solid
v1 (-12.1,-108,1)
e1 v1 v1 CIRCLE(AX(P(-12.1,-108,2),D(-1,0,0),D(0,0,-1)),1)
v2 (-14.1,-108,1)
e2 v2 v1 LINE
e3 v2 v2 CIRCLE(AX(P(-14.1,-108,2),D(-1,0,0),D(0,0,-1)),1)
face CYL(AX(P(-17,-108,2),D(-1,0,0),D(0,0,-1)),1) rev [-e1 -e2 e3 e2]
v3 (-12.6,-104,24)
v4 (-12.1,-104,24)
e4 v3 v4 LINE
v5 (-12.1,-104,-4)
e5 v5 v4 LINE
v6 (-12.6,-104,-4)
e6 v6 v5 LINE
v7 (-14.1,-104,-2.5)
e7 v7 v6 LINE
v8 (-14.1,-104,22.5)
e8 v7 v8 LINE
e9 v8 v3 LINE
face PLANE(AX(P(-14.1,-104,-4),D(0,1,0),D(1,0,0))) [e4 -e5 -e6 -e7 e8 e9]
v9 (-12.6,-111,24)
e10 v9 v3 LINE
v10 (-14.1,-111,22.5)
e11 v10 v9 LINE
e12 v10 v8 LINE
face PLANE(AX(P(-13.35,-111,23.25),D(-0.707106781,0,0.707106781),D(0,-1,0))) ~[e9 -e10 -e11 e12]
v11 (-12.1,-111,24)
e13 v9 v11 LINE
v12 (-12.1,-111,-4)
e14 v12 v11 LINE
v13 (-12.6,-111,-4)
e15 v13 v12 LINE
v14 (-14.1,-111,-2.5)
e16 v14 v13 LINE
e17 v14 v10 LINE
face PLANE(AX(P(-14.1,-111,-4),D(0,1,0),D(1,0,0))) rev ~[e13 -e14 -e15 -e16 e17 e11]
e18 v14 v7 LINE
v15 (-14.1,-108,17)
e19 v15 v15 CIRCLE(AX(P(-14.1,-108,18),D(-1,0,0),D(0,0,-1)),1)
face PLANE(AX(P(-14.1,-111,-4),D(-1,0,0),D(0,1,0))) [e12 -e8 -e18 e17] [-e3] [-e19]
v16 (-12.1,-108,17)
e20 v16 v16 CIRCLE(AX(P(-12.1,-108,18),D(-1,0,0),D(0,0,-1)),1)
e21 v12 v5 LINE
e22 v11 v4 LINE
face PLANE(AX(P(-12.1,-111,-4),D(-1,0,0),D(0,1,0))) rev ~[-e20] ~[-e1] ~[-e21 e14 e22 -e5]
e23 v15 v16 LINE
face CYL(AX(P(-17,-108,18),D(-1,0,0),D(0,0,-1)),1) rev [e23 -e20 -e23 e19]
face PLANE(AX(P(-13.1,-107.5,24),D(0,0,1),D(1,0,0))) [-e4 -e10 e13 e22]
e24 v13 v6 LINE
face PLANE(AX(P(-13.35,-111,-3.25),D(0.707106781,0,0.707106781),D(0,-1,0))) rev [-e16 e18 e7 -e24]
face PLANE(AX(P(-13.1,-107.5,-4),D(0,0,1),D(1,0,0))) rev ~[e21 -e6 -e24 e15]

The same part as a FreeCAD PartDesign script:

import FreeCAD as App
import Part
import Sketcher
from FreeCAD import Vector


def edges_at(feature, points):
    """Names of the edges that pass closest to the given points."""
    edges = feature.Shape.Edges
    near = lambda p: min(range(len(edges)), key=lambda i: edges[i].distToShape(Part.Vertex(*p))[0])
    return sorted({f"Edge{near(p) + 1}" for p in points})

doc = App.newDocument("Part")
body = doc.addObject("PartDesign::Body", "Body")

sketch1 = body.newObject("Sketcher::SketchObject", "Sketch")
sketch1.AttachmentSupport = (doc.getObject("YZ_Plane"), [""])
sketch1.MapMode = "FlatFace"
sketch1.AttachmentOffset = App.Placement(Vector(0, 0, -17), App.Rotation())
sketch1.addGeometry(Part.Circle(Vector(-108, 18, 0), Vector(0, 0, 1), 1), False)
sketch1.addConstraint(Sketcher.Constraint("Diameter", 0, 2.0))
sketch1.addConstraint(Sketcher.Constraint("DistanceX", 0, 3, -1, 1, 108.0))
sketch1.addConstraint(Sketcher.Constraint("DistanceY", -1, 1, 0, 3, 18.0))
pad1 = body.newObject("PartDesign::Pad", "Pad")
pad1.Profile = sketch1
pad1.Length = 20
body2 = doc.addObject("PartDesign::Body", "Body001")
body2.AllowCompound = True

sketch2 = body2.newObject("Sketcher::SketchObject", "Sketch001")
sketch2.AttachmentSupport = (doc.getObject("YZ_Plane001"), [""])
sketch2.MapMode = "FlatFace"
sketch2.AttachmentOffset = App.Placement(Vector(0, 0, -17), App.Rotation())
sketch2.addGeometry(Part.Circle(Vector(-108, 2, 0), Vector(0, 0, 1), 1), False)
sketch2.addConstraint(Sketcher.Constraint("Diameter", 0, 2.0))
sketch2.addConstraint(Sketcher.Constraint("DistanceX", 0, 3, -1, 1, 108.0))
sketch2.addConstraint(Sketcher.Constraint("DistanceY", -1, 1, 0, 3, 2.0))
pad2 = body2.newObject("PartDesign::Pad", "Pad001")
pad2.Profile = sketch2
pad2.Length = 20
doc.recompute()

boolean = body2.newObject("PartDesign::Boolean", "Boolean")
boolean.Type = "Fuse"
boolean.addObjects([body])
body3 = doc.addObject("PartDesign::Body", "Body002")

sketch3 = body3.newObject("Sketcher::SketchObject", "Sketch002")
sketch3.AttachmentSupport = (doc.getObject("XY_Plane002"), [""])
sketch3.MapMode = "FlatFace"
sketch3.AttachmentOffset = App.Placement(Vector(0, 0, -4), App.Rotation())
sketch3.addGeometry(Part.LineSegment(Vector(-14.1, -104, 0), Vector(-14.1, -111, 0)), False)
sketch3.addGeometry(Part.LineSegment(Vector(-14.1, -111, 0), Vector(-12.1, -111, 0)), False)
sketch3.addGeometry(Part.LineSegment(Vector(-12.1, -111, 0), Vector(-12.1, -104, 0)), False)
sketch3.addGeometry(Part.LineSegment(Vector(-12.1, -104, 0), Vector(-14.1, -104, 0)), False)
sketch3.addConstraint(Sketcher.Constraint("Coincident", 0, 2, 1, 1))
sketch3.addConstraint(Sketcher.Constraint("Coincident", 1, 2, 2, 1))
sketch3.addConstraint(Sketcher.Constraint("Coincident", 2, 2, 3, 1))
sketch3.addConstraint(Sketcher.Constraint("Coincident", 3, 2, 0, 1))
sketch3.addConstraint(Sketcher.Constraint("Vertical", 0))
sketch3.addConstraint(Sketcher.Constraint("Horizontal", 1))
sketch3.addConstraint(Sketcher.Constraint("Vertical", 2))
sketch3.addConstraint(Sketcher.Constraint("Horizontal", 3))
sketch3.addConstraint(Sketcher.Constraint("DistanceX", 1, 1, 1, 2, 2.0))
sketch3.addConstraint(Sketcher.Constraint("DistanceY", 0, 2, 0, 1, 7.0))
sketch3.addConstraint(Sketcher.Constraint("DistanceY", 0, 2, -1, 1, 111.0))
sketch3.addConstraint(Sketcher.Constraint("DistanceX", 0, 2, -1, 1, 14.1))
pad3 = body3.newObject("PartDesign::Pad", "Pad002")
pad3.Profile = sketch3
pad3.Length = 28
doc.recompute()

boolean2 = body3.newObject("PartDesign::Boolean", "Boolean001")
boolean2.Type = "Cut"
boolean2.addObjects([body2])
doc.recompute()

chamfer = body3.newObject("PartDesign::Chamfer", "Chamfer")
chamfer.Base = (boolean2, edges_at(boolean2, [(-14.1, -107.5, 24), (-14.1, -107.5, -4)]))
chamfer.Size = 1.5

doc.recompute()
